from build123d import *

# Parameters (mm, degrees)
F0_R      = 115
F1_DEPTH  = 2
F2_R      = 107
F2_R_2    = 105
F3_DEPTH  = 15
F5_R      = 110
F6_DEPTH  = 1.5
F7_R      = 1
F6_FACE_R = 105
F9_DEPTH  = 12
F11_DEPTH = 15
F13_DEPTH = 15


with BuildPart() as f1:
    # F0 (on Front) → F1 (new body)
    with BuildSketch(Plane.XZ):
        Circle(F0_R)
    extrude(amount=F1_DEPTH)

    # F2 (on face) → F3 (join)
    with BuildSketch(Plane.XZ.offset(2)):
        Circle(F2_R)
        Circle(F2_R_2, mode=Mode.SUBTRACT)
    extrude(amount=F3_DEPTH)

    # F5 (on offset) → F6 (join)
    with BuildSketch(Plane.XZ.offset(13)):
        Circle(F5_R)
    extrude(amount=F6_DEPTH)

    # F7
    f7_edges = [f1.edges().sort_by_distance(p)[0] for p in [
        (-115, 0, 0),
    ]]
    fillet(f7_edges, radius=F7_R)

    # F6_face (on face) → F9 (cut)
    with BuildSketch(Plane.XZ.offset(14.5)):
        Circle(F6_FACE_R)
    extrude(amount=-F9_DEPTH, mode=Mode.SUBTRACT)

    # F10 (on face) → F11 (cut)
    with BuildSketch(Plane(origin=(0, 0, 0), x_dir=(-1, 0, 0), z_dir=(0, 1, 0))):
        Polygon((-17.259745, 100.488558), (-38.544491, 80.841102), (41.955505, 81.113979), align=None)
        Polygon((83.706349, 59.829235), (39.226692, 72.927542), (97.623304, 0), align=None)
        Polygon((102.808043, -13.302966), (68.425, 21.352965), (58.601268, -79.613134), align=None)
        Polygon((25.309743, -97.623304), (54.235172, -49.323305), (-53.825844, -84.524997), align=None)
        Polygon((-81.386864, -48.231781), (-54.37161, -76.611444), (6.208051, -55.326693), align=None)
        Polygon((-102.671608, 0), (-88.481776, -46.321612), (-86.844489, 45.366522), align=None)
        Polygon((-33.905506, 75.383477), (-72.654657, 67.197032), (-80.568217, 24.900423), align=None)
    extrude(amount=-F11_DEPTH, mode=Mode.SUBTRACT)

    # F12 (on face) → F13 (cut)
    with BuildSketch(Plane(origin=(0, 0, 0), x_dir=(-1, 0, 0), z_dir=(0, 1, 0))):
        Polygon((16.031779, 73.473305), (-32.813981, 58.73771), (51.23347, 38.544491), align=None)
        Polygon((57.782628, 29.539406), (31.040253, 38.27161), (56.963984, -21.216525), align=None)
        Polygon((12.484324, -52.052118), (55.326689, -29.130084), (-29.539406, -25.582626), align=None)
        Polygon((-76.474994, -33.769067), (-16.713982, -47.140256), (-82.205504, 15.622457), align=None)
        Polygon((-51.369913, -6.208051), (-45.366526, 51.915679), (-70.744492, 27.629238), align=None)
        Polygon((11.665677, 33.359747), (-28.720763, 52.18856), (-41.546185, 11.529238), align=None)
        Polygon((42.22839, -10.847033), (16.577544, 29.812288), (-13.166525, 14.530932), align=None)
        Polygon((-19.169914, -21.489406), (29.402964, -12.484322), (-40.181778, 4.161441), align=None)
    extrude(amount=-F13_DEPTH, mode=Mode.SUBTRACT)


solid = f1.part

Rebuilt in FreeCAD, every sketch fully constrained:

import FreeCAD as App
import Part
import Sketcher

V = App.Vector


def edges_at(feature, points):
    """Names of the edges that pass closest to the given points."""
    edges = feature.Shape.Edges
    near = lambda p: min(range(len(edges)), key=lambda i: edges[i].distToShape(Part.Vertex(*p))[0])
    return sorted({f"Edge{near(p) + 1}" for p in points})

doc = App.newDocument("Part")
params = doc.addObject("Spreadsheet::Sheet", "Params")
for row, (alias, value) in enumerate([
    ("sketch1_diameter", "230 mm"),
    ("pad1_length", "2 mm"),
    ("sketch2_diameter", "214 mm"),
    ("sketch2_diameter2", "210 mm"),
    ("pad2_length", "15 mm"),
    ("sketch3_diameter", "220 mm"),
    ("pad3_length", "1.5 mm"),
    ("fillet_radius", "1 mm"),
    ("sketch4_diameter", "210 mm"),
    ("pocket1_length", "12 mm"),
    ("pocket2_length", "15 mm"),
    ("pocket3_length", "15 mm"),
], start=1):
    params.set(f"A{row}", alias)
    params.set(f"B{row}", "=" + value)
    params.setAlias(f"B{row}", alias)

body = doc.addObject("PartDesign::Body", "Body")

# Sketch on XZ plane
sketch1 = doc.addObject("Sketcher::SketchObject", "Sketch")
body.addObject(sketch1)
sketch1.AttachmentSupport = (doc.XZ_Plane, [""])
sketch1.MapMode = "FlatFace"
sketch1.addGeometry(Part.Circle(V(0, 0, 0), V(0, 0, 1), 115), False)
sketch1.addConstraint(Sketcher.Constraint("Coincident", 0, 3, -1, 1))
sketch1.addConstraint(Sketcher.Constraint("Diameter", 0, 230.0))
sketch1.setExpression("Constraints[1]", "Params.sketch1_diameter")
pad1 = doc.addObject("PartDesign::Pad", "Pad")
body.addObject(pad1)
pad1.Profile = sketch1
pad1.setExpression("Length", "Params.pad1_length")

# Sketch on XZ plane
sketch2 = doc.addObject("Sketcher::SketchObject", "Sketch001")
body.addObject(sketch2)
sketch2.AttachmentSupport = (doc.XZ_Plane, [""])
sketch2.MapMode = "FlatFace"
sketch2.AttachmentOffset = App.Placement(V(0, 0, 2), App.Rotation())
sketch2.addGeometry(Part.Circle(V(0, 0, 0), V(0, 0, 1), 107), False)
sketch2.addGeometry(Part.Circle(V(0, 0, 0), V(0, 0, 1), 105), False)
sketch2.addConstraint(Sketcher.Constraint("Coincident", 0, 3, -1, 1))
sketch2.addConstraint(Sketcher.Constraint("Coincident", 1, 3, -1, 1))
sketch2.addConstraint(Sketcher.Constraint("Diameter", 0, 214.0))
sketch2.addConstraint(Sketcher.Constraint("Diameter", 1, 210.0))
sketch2.setExpression("Constraints[2]", "Params.sketch2_diameter")
sketch2.setExpression("Constraints[3]", "Params.sketch2_diameter2")
pad2 = doc.addObject("PartDesign::Pad", "Pad001")
body.addObject(pad2)
pad2.Profile = sketch2
pad2.setExpression("Length", "Params.pad2_length")

# Sketch on XZ plane
sketch3 = doc.addObject("Sketcher::SketchObject", "Sketch002")
body.addObject(sketch3)
sketch3.AttachmentSupport = (doc.XZ_Plane, [""])
sketch3.MapMode = "FlatFace"
sketch3.AttachmentOffset = App.Placement(V(0, 0, 13), App.Rotation())
sketch3.addGeometry(Part.Circle(V(0, 0, 0), V(0, 0, 1), 110), False)
sketch3.addConstraint(Sketcher.Constraint("Coincident", 0, 3, -1, 1))
sketch3.addConstraint(Sketcher.Constraint("Diameter", 0, 220.0))
sketch3.setExpression("Constraints[1]", "Params.sketch3_diameter")
pad3 = doc.addObject("PartDesign::Pad", "Pad002")
body.addObject(pad3)
pad3.Profile = sketch3
pad3.setExpression("Length", "Params.pad3_length")
doc.recompute()

fillet = doc.addObject("PartDesign::Fillet", "Fillet")
body.addObject(fillet)
fillet.Base = (pad3, edges_at(pad3, [(-115, 0, 0)]))
fillet.setExpression("Radius", "Params.fillet_radius")

# Sketch on XZ plane
sketch4 = doc.addObject("Sketcher::SketchObject", "Sketch003")
body.addObject(sketch4)
sketch4.AttachmentSupport = (doc.XZ_Plane, [""])
sketch4.MapMode = "FlatFace"
sketch4.AttachmentOffset = App.Placement(V(0, 0, 14.5), App.Rotation())
sketch4.addGeometry(Part.Circle(V(0, 0, 0), V(0, 0, 1), 105), False)
sketch4.addConstraint(Sketcher.Constraint("Coincident", 0, 3, -1, 1))
sketch4.addConstraint(Sketcher.Constraint("Diameter", 0, 210.0))
sketch4.setExpression("Constraints[1]", "Params.sketch4_diameter")
pocket1 = doc.addObject("PartDesign::Pocket", "Pocket")
body.addObject(pocket1)
pocket1.Profile = sketch4
pocket1.setExpression("Length", "Params.pocket1_length")

# Sketch on XZ plane
sketch5 = doc.addObject("Sketcher::SketchObject", "Sketch004")
body.addObject(sketch5)
sketch5.AttachmentSupport = (doc.XZ_Plane, [""])
sketch5.MapMode = "FlatFace"
sketch5.addGeometry(Part.LineSegment(V(17.259745, 100.488558, 0), V(38.544491, 80.841102, 0)), False)
sketch5.addGeometry(Part.LineSegment(V(38.544491, 80.841102, 0), V(-41.955505, 81.113979, 0)), False)
sketch5.addGeometry(Part.LineSegment(V(-41.955505, 81.113979, 0), V(17.259745, 100.488558, 0)), False)
sketch5.addGeometry(Part.LineSegment(V(-83.706349, 59.829235, 0), V(-39.226692, 72.927542, 0)), False)
sketch5.addGeometry(Part.LineSegment(V(-39.226692, 72.927542, 0), V(-97.623304, 0, 0)), False)
sketch5.addGeometry(Part.LineSegment(V(-97.623304, 0, 0), V(-83.706349, 59.829235, 0)), False)
sketch5.addGeometry(Part.LineSegment(V(-102.808043, -13.302966, 0), V(-68.425, 21.352965, 0)), False)
sketch5.addGeometry(Part.LineSegment(V(-68.425, 21.352965, 0), V(-58.601268, -79.613134, 0)), False)
sketch5.addGeometry(Part.LineSegment(V(-58.601268, -79.613134, 0), V(-102.808043, -13.302966, 0)), False)
sketch5.addGeometry(Part.LineSegment(V(-25.309743, -97.623304, 0), V(-54.235172, -49.323305, 0)), False)
sketch5.addGeometry(Part.LineSegment(V(-54.235172, -49.323305, 0), V(53.825844, -84.524997, 0)), False)
sketch5.addGeometry(Part.LineSegment(V(53.825844, -84.524997, 0), V(-25.309743, -97.623304, 0)), False)
sketch5.addGeometry(Part.LineSegment(V(81.386864, -48.231781, 0), V(54.37161, -76.611444, 0)), False)
sketch5.addGeometry(Part.LineSegment(V(54.37161, -76.611444, 0), V(-6.208051, -55.326693, 0)), False)
sketch5.addGeometry(Part.LineSegment(V(-6.208051, -55.326693, 0), V(81.386864, -48.231781, 0)), False)
sketch5.addGeometry(Part.LineSegment(V(102.671608, 0, 0), V(88.481776, -46.321612, 0)), False)
sketch5.addGeometry(Part.LineSegment(V(88.481776, -46.321612, 0), V(86.844489, 45.366522, 0)), False)
sketch5.addGeometry(Part.LineSegment(V(86.844489, 45.366522, 0), V(102.671608, 0, 0)), False)
sketch5.addGeometry(Part.LineSegment(V(33.905506, 75.383477, 0), V(72.654657, 67.197032, 0)), False)
sketch5.addGeometry(Part.LineSegment(V(72.654657, 67.197032, 0), V(80.568217, 24.900423, 0)), False)
sketch5.addGeometry(Part.LineSegment(V(80.568217, 24.900423, 0), V(33.905506, 75.383477, 0)), False)
sketch5.addConstraint(Sketcher.Constraint("Coincident", 0, 2, 1, 1))
sketch5.addConstraint(Sketcher.Constraint("Coincident", 1, 2, 2, 1))
sketch5.addConstraint(Sketcher.Constraint("Coincident", 2, 2, 0, 1))
sketch5.addConstraint(Sketcher.Constraint("Coincident", 3, 2, 4, 1))
sketch5.addConstraint(Sketcher.Constraint("Coincident", 4, 2, 5, 1))
sketch5.addConstraint(Sketcher.Constraint("Coincident", 5, 2, 3, 1))
sketch5.addConstraint(Sketcher.Constraint("Coincident", 6, 2, 7, 1))
sketch5.addConstraint(Sketcher.Constraint("Coincident", 7, 2, 8, 1))
sketch5.addConstraint(Sketcher.Constraint("Coincident", 8, 2, 6, 1))
sketch5.addConstraint(Sketcher.Constraint("Coincident", 9, 2, 10, 1))
sketch5.addConstraint(Sketcher.Constraint("Coincident", 10, 2, 11, 1))
sketch5.addConstraint(Sketcher.Constraint("Coincident", 11, 2, 9, 1))
sketch5.addConstraint(Sketcher.Constraint("Coincident", 12, 2, 13, 1))
sketch5.addConstraint(Sketcher.Constraint("Coincident", 13, 2, 14, 1))
sketch5.addConstraint(Sketcher.Constraint("Coincident", 14, 2, 12, 1))
sketch5.addConstraint(Sketcher.Constraint("Coincident", 15, 2, 16, 1))
sketch5.addConstraint(Sketcher.Constraint("Coincident", 16, 2, 17, 1))
sketch5.addConstraint(Sketcher.Constraint("Coincident", 17, 2, 15, 1))
sketch5.addConstraint(Sketcher.Constraint("Coincident", 18, 2, 19, 1))
sketch5.addConstraint(Sketcher.Constraint("Coincident", 19, 2, 20, 1))
sketch5.addConstraint(Sketcher.Constraint("Coincident", 20, 2, 18, 1))
sketch5.addConstraint(Sketcher.Constraint("PointOnObject", 4, 2, -1))
sketch5.addConstraint(Sketcher.Constraint("PointOnObject", 17, 2, -1))
sketch5.addConstraint(Sketcher.Constraint("DistanceY", 11, 2, 9, 2, 48.299999))
sketch5.addConstraint(Sketcher.Constraint("DistanceX", 12, 2, 17, 2, 48.299998))
sketch5.addConstraint(Sketcher.Constraint("Distance", 12, 39.182001))
sketch5.addConstraint(Sketcher.Constraint("DistanceX", 6, 2, -1, 1, 68.425))
sketch5.addConstraint(Sketcher.Constraint("Distance", 8, 79.694902))
sketch5.addConstraint(Sketcher.Constraint("DistanceX", 4, 2, 1, 2, 55.667799))
sketch5.addConstraint(Sketcher.Constraint("DistanceY", 7, 2, 6, 2, 100.966099))
sketch5.addConstraint(Sketcher.Constraint("DistanceY", 8, 2, 5, 2, 73.132201))
sketch5.addConstraint(Sketcher.Constraint("DistanceY", 10, 2, 0, 2, 165.366099))
sketch5.addConstraint(Sketcher.Constraint("DistanceX", 8, 2, 11, 2, 77.4983))
sketch5.addConstraint(Sketcher.Constraint("DistanceY", 19, 2, 16, 2, 20.466099))
sketch5.addConstraint(Sketcher.Constraint("Distance", 1, 80.500458))
sketch5.addConstraint(Sketcher.Constraint("Distance", 6, 48.818308))
sketch5.addConstraint(Sketcher.Constraint("Distance", 11, 80.212261))
sketch5.addConstraint(Sketcher.Constraint("Distance", 14, 87.881778))
sketch5.addConstraint(Sketcher.Constraint("Distance", 15, 48.446291))
sketch5.addConstraint(Sketcher.Constraint("Distance", 16, 91.702751))
sketch5.addConstraint(Sketcher.Constraint("Distance", 17, 48.048091))
sketch5.addConstraint(Sketcher.Constraint("DistanceX", -1, 1, 0, 2, 38.544491))
sketch5.addConstraint(Sketcher.Constraint("DistanceY", -1, 1, 1, 2, 81.113979))
sketch5.addConstraint(Sketcher.Constraint("DistanceX", 5, 2, -1, 1, 83.706349))
sketch5.addConstraint(Sketcher.Constraint("DistanceX", -1, 1, 12, 2, 54.37161))
sketch5.addConstraint(Sketcher.Constraint("DistanceX", 13, 2, -1, 1, 6.208051))
sketch5.addConstraint(Sketcher.Constraint("DistanceY", 14, 2, -1, 1, 48.231781))
sketch5.addConstraint(Sketcher.Constraint("DistanceX", -1, 1, 16, 2, 86.844489))
sketch5.addConstraint(Sketcher.Constraint("DistanceY", -1, 1, 18, 2, 67.197032))
sketch5.addConstraint(Sketcher.Constraint("DistanceX", 1, 2, 2, 2, 59.21525))
sketch5.addConstraint(Sketcher.Constraint("DistanceY", 1, 2, 2, 2, 19.374579))
sketch5.addConstraint(Sketcher.Constraint("DistanceY", 3, 2, 0, 2, 7.91356))
sketch5.addConstraint(Sketcher.Constraint("DistanceY", 6, 2, 5, 2, 38.47627))
sketch5.addConstraint(Sketcher.Constraint("DistanceX", 8, 2, 3, 2, 63.581351))
sketch5.addConstraint(Sketcher.Constraint("DistanceY", 8, 2, 3, 2, 86.230508))
sketch5.addConstraint(Sketcher.Constraint("DistanceY", 7, 2, 9, 2, 30.289829))
sketch5.addConstraint(Sketcher.Constraint("DistanceX", 8, 2, 9, 2, 48.572871))
sketch5.addConstraint(Sketcher.Constraint("DistanceY", 11, 2, 12, 2, 21.01186))
sketch5.addConstraint(Sketcher.Constraint("DistanceY", 11, 2, 13, 2, 42.296611))
sketch5.addConstraint(Sketcher.Constraint("DistanceX", 18, 2, 16, 2, 14.189832))
sketch5.addConstraint(Sketcher.Constraint("DistanceX", 19, 2, 16, 2, 6.276272))
sketch5.addConstraint(Sketcher.Constraint("DistanceX", 2, 2, 20, 2, 16.645761))
sketch5.addConstraint(Sketcher.Constraint("DistanceY", 20, 2, 2, 2, 25.105081))
pocket2 = doc.addObject("PartDesign::Pocket", "Pocket001")
body.addObject(pocket2)
pocket2.Profile = sketch5
pocket2.setExpression("Length", "Params.pocket2_length")
pocket2.Reversed = True

# Sketch on XZ plane
sketch6 = doc.addObject("Sketcher::SketchObject", "Sketch005")
body.addObject(sketch6)
sketch6.AttachmentSupport = (doc.XZ_Plane, [""])
sketch6.MapMode = "FlatFace"
sketch6.addGeometry(Part.LineSegment(V(-16.031779, 73.473305, 0), V(32.813981, 58.73771, 0)), False)
sketch6.addGeometry(Part.LineSegment(V(32.813981, 58.73771, 0), V(-51.23347, 38.544491, 0)), False)
sketch6.addGeometry(Part.LineSegment(V(-51.23347, 38.544491, 0), V(-16.031779, 73.473305, 0)), False)
sketch6.addGeometry(Part.LineSegment(V(-57.782628, 29.539406, 0), V(-31.040253, 38.27161, 0)), False)
sketch6.addGeometry(Part.LineSegment(V(-31.040253, 38.27161, 0), V(-56.963984, -21.216525, 0)), False)
sketch6.addGeometry(Part.LineSegment(V(-56.963984, -21.216525, 0), V(-57.782628, 29.539406, 0)), False)
sketch6.addGeometry(Part.LineSegment(V(-12.484324, -52.052118, 0), V(-55.326689, -29.130084, 0)), False)
sketch6.addGeometry(Part.LineSegment(V(-55.326689, -29.130084, 0), V(29.539406, -25.582626, 0)), False)
sketch6.addGeometry(Part.LineSegment(V(29.539406, -25.582626, 0), V(-12.484324, -52.052118, 0)), False)
sketch6.addGeometry(Part.LineSegment(V(76.474994, -33.769067, 0), V(16.713982, -47.140256, 0)), False)
sketch6.addGeometry(Part.LineSegment(V(16.713982, -47.140256, 0), V(82.205504, 15.622457, 0)), False)
sketch6.addGeometry(Part.LineSegment(V(82.205504, 15.622457, 0), V(76.474994, -33.769067, 0)), False)
sketch6.addGeometry(Part.LineSegment(V(51.369913, -6.208051, 0), V(45.366526, 51.915679, 0)), False)
sketch6.addGeometry(Part.LineSegment(V(45.366526, 51.915679, 0), V(70.744492, 27.629238, 0)), False)
sketch6.addGeometry(Part.LineSegment(V(70.744492, 27.629238, 0), V(51.369913, -6.208051, 0)), False)
sketch6.addGeometry(Part.LineSegment(V(-11.665677, 33.359747, 0), V(28.720763, 52.18856, 0)), False)
sketch6.addGeometry(Part.LineSegment(V(28.720763, 52.18856, 0), V(41.546185, 11.529238, 0)), False)
sketch6.addGeometry(Part.LineSegment(V(41.546185, 11.529238, 0), V(-11.665677, 33.359747, 0)), False)
sketch6.addGeometry(Part.LineSegment(V(-42.22839, -10.847033, 0), V(-16.577544, 29.812288, 0)), False)
sketch6.addGeometry(Part.LineSegment(V(-16.577544, 29.812288, 0), V(13.166525, 14.530932, 0)), False)
sketch6.addGeometry(Part.LineSegment(V(13.166525, 14.530932, 0), V(-42.22839, -10.847033, 0)), False)
sketch6.addGeometry(Part.LineSegment(V(19.169914, -21.489406, 0), V(-29.402964, -12.484322, 0)), False)
sketch6.addGeometry(Part.LineSegment(V(-29.402964, -12.484322, 0), V(40.181778, 4.161441, 0)), False)
sketch6.addGeometry(Part.LineSegment(V(40.181778, 4.161441, 0), V(19.169914, -21.489406, 0)), False)
sketch6.addConstraint(Sketcher.Constraint("Coincident", 0, 2, 1, 1))
sketch6.addConstraint(Sketcher.Constraint("Coincident", 1, 2, 2, 1))
sketch6.addConstraint(Sketcher.Constraint("Coincident", 2, 2, 0, 1))
sketch6.addConstraint(Sketcher.Constraint("Coincident", 3, 2, 4, 1))
sketch6.addConstraint(Sketcher.Constraint("Coincident", 4, 2, 5, 1))
sketch6.addConstraint(Sketcher.Constraint("Coincident", 5, 2, 3, 1))
sketch6.addConstraint(Sketcher.Constraint("Coincident", 6, 2, 7, 1))
sketch6.addConstraint(Sketcher.Constraint("Coincident", 7, 2, 8, 1))
sketch6.addConstraint(Sketcher.Constraint("Coincident", 8, 2, 6, 1))
sketch6.addConstraint(Sketcher.Constraint("Coincident", 9, 2, 10, 1))
sketch6.addConstraint(Sketcher.Constraint("Coincident", 10, 2, 11, 1))
sketch6.addConstraint(Sketcher.Constraint("Coincident", 11, 2, 9, 1))
sketch6.addConstraint(Sketcher.Constraint("Coincident", 12, 2, 13, 1))
sketch6.addConstraint(Sketcher.Constraint("Coincident", 13, 2, 14, 1))
sketch6.addConstraint(Sketcher.Constraint("Coincident", 14, 2, 12, 1))
sketch6.addConstraint(Sketcher.Constraint("Coincident", 15, 2, 16, 1))
sketch6.addConstraint(Sketcher.Constraint("Coincident", 16, 2, 17, 1))
sketch6.addConstraint(Sketcher.Constraint("Coincident", 17, 2, 15, 1))
sketch6.addConstraint(Sketcher.Constraint("Coincident", 18, 2, 19, 1))
sketch6.addConstraint(Sketcher.Constraint("Coincident", 19, 2, 20, 1))
sketch6.addConstraint(Sketcher.Constraint("Coincident", 20, 2, 18, 1))
sketch6.addConstraint(Sketcher.Constraint("Coincident", 21, 2, 22, 1))
sketch6.addConstraint(Sketcher.Constraint("Coincident", 22, 2, 23, 1))
sketch6.addConstraint(Sketcher.Constraint("Coincident", 23, 2, 21, 1))
sketch6.addConstraint(Sketcher.Constraint("DistanceY", 16, 2, 13, 2, 16.1))
sketch6.addConstraint(Sketcher.Constraint("DistanceX", 23, 2, 14, 2, 32.199999))
sketch6.addConstraint(Sketcher.Constraint("DistanceY", 3, 2, 0, 2, 20.4661))
sketch6.addConstraint(Sketcher.Constraint("DistanceY", 5, 2, 2, 2, 43.933899))
sketch6.addConstraint(Sketcher.Constraint("DistanceY", 7, 2, 4, 2, 4.366101))
sketch6.addConstraint(Sketcher.Constraint("DistanceX", 7, 2, 10, 2, 52.666098))
sketch6.addConstraint(Sketcher.Constraint("DistanceX", 2, 2, 17, 2, 4.366102))
sketch6.addConstraint(Sketcher.Constraint("DistanceX", 6, 2, 20, 2, 13.098299))
sketch6.addConstraint(Sketcher.Constraint("Distance", 2, 49.590131))
sketch6.addConstraint(Sketcher.Constraint("Distance", 3, 28.131939))
sketch6.addConstraint(Sketcher.Constraint("Distance", 4, 64.891279))
sketch6.addConstraint(Sketcher.Constraint("Distance", 6, 48.588969))
sketch6.addConstraint(Sketcher.Constraint("Distance", 9, 61.238609))
sketch6.addConstraint(Sketcher.Constraint("Distance", 12, 58.432941))
sketch6.addConstraint(Sketcher.Constraint("Distance", 13, 35.12652))
sketch6.addConstraint(Sketcher.Constraint("Distance", 14, 38.991492))
sketch6.addConstraint(Sketcher.Constraint("Distance", 19, 33.439938))
sketch6.addConstraint(Sketcher.Constraint("Distance", 20, 60.931418))
sketch6.addConstraint(Sketcher.Constraint("Distance", 22, 71.54801))
sketch6.addConstraint(Sketcher.Constraint("DistanceX", -1, 1, 0, 2, 32.813981))
sketch6.addConstraint(Sketcher.Constraint("DistanceY", -1, 1, 0, 2, 58.73771))
sketch6.addConstraint(Sketcher.Constraint("DistanceX", 1, 2, -1, 1, 51.23347))
sketch6.addConstraint(Sketcher.Constraint("DistanceY", -1, 1, 1, 2, 38.544491))
sketch6.addConstraint(Sketcher.Constraint("DistanceX", 2, 2, -1, 1, 16.031779))
sketch6.addConstraint(Sketcher.Constraint("DistanceX", 5, 2, -1, 1, 57.782628))
sketch6.addConstraint(Sketcher.Constraint("DistanceX", 6, 2, -1, 1, 55.326689))
sketch6.addConstraint(Sketcher.Constraint("DistanceY", -1, 1, 12, 2, 51.915679))
sketch6.addConstraint(Sketcher.Constraint("DistanceX", -1, 1, 13, 2, 70.744492))
sketch6.addConstraint(Sketcher.Constraint("DistanceY", -1, 1, 13, 2, 27.629238))
sketch6.addConstraint(Sketcher.Constraint("DistanceY", -1, 1, 15, 2, 52.18856))
sketch6.addConstraint(Sketcher.Constraint("DistanceY", -1, 1, 22, 2, 4.161441))
sketch6.addConstraint(Sketcher.Constraint("DistanceX", 4, 2, 3, 2, 25.923731))
sketch6.addConstraint(Sketcher.Constraint("DistanceY", 6, 2, 4, 2, 7.913559))
sketch6.addConstraint(Sketcher.Constraint("DistanceX", 4, 2, 7, 2, 86.50339))
sketch6.addConstraint(Sketcher.Constraint("DistanceX", 8, 2, 7, 2, 42.02373))
sketch6.addConstraint(Sketcher.Constraint("DistanceY", 9, 2, 7, 2, 21.55763))
sketch6.addConstraint(Sketcher.Constraint("DistanceX", 6, 2, 9, 2, 72.040671))
sketch6.addConstraint(Sketcher.Constraint("DistanceY", 11, 2, 7, 2, 8.186441))
sketch6.addConstraint(Sketcher.Constraint("DistanceY", 10, 2, 13, 2, 12.006781))
sketch6.addConstraint(Sketcher.Constraint("DistanceX", 15, 2, 13, 2, 42.023729))
sketch6.addConstraint(Sketcher.Constraint("DistanceX", 7, 2, 16, 2, 12.006779))
sketch6.addConstraint(Sketcher.Constraint("DistanceY", 5, 2, 17, 2, 3.820341))
sketch6.addConstraint(Sketcher.Constraint("DistanceY", 18, 2, 17, 2, 3.547459))
sketch6.addConstraint(Sketcher.Constraint("DistanceX", 3, 2, 18, 2, 14.462709))
sketch6.addConstraint(Sketcher.Constraint("DistanceX", 19, 2, 16, 2, 28.37966))
sketch6.addConstraint(Sketcher.Constraint("DistanceY", 21, 2, 20, 2, 1.637289))
sketch6.addConstraint(Sketcher.Constraint("DistanceX", 4, 2, 21, 2, 27.56102))
sketch6.addConstraint(Sketcher.Constraint("DistanceY", 7, 2, 23, 2, 4.09322))
pocket3 = doc.addObject("PartDesign::Pocket", "Pocket002")
body.addObject(pocket3)
pocket3.Profile = sketch6
pocket3.setExpression("Length", "Params.pocket3_length")
pocket3.Reversed = True

doc.recompute()
